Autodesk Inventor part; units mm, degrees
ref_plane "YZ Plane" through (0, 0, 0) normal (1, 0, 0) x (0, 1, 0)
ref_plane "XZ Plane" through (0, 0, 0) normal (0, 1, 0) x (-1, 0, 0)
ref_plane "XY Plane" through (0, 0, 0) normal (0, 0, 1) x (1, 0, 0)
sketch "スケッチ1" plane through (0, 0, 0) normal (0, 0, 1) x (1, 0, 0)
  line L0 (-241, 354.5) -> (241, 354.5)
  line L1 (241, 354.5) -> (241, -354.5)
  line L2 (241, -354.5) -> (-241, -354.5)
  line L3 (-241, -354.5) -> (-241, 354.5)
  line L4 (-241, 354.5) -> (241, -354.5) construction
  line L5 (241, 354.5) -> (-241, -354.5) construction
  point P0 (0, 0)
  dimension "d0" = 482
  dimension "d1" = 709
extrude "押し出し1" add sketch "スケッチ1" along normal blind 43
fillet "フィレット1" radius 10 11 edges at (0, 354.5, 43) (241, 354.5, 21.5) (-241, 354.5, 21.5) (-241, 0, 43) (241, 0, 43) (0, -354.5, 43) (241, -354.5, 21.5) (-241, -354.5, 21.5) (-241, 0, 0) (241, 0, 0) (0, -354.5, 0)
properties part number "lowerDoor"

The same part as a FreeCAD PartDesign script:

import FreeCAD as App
import Part
import Sketcher

V = App.Vector
Q = App.Units.Quantity


def edges_at(feature, points):
    """Names of the edges that pass closest to the given points."""
    edges = feature.Shape.Edges
    near = lambda p: min(range(len(edges)), key=lambda i: edges[i].distToShape(Part.Vertex(*p))[0])
    return sorted({f"Edge{near(p) + 1}" for p in points})


def add_polygon(sketch, points):
    """Adds a closed chain of lines whose ends are joined by coincident constraints."""
    first, n = sketch.GeometryCount, len(points)
    for a, b in zip(points, points[1:] + points[:1]):
        sketch.addGeometry(Part.LineSegment(App.Vector(*a, 0), App.Vector(*b, 0)), False)
    for i in range(n):
        sketch.addConstraint(Sketcher.Constraint("Coincident", first + i, 2, first + (i + 1) % n, 1))

doc = App.newDocument("Part")
body = doc.addObject("PartDesign::Body", "Body")

# Sketch on XY plane
sketch1 = body.newObject("Sketcher::SketchObject", "Sketch")
sketch1.AttachmentSupport = (doc.getObject("XY_Plane"), [""])
sketch1.MapMode = "FlatFace"
add_polygon(sketch1, [(241, 354), (-241, 354), (-241, -354), (241, -354)])  # lines 0-3
sketch1.addConstraint(Sketcher.Constraint("Horizontal", 0))
sketch1.addConstraint(Sketcher.Constraint("Vertical", 1))
sketch1.addConstraint(Sketcher.Constraint("Horizontal", 2))
sketch1.addConstraint(Sketcher.Constraint("Vertical", 3))
sketch1.addConstraint(Sketcher.Constraint("Symmetric", 0, 2, 2, 2, -1, 1))
sketch1.addConstraint(Sketcher.Constraint("DistanceX", 0, 2, 0, 1, Q("482 mm")))
sketch1.addConstraint(Sketcher.Constraint("DistanceY", 1, 2, 1, 1, Q("709 mm")))
pad1 = body.newObject("PartDesign::Pad", "Pad")
pad1.Profile = sketch1
pad1.Length = 43
doc.recompute()

fillet = body.newObject("PartDesign::Fillet", "Fillet")
fillet.Base = (pad1, edges_at(pad1, [
    (0, 354.5, 43),
    (241, 354.5, 21.5),
    (-241, 354.5, 21.5),
    (-241, 0, 43),
    (241, 0, 43),
    (0, -354.5, 43),
    (241, -354.5, 21.5),
    (-241, -354.5, 21.5),
    (-241, 0, 0),
    (241, 0, 0),
    (0, -354.5, 0),
]))
fillet.Radius = 10

doc.recompute()
